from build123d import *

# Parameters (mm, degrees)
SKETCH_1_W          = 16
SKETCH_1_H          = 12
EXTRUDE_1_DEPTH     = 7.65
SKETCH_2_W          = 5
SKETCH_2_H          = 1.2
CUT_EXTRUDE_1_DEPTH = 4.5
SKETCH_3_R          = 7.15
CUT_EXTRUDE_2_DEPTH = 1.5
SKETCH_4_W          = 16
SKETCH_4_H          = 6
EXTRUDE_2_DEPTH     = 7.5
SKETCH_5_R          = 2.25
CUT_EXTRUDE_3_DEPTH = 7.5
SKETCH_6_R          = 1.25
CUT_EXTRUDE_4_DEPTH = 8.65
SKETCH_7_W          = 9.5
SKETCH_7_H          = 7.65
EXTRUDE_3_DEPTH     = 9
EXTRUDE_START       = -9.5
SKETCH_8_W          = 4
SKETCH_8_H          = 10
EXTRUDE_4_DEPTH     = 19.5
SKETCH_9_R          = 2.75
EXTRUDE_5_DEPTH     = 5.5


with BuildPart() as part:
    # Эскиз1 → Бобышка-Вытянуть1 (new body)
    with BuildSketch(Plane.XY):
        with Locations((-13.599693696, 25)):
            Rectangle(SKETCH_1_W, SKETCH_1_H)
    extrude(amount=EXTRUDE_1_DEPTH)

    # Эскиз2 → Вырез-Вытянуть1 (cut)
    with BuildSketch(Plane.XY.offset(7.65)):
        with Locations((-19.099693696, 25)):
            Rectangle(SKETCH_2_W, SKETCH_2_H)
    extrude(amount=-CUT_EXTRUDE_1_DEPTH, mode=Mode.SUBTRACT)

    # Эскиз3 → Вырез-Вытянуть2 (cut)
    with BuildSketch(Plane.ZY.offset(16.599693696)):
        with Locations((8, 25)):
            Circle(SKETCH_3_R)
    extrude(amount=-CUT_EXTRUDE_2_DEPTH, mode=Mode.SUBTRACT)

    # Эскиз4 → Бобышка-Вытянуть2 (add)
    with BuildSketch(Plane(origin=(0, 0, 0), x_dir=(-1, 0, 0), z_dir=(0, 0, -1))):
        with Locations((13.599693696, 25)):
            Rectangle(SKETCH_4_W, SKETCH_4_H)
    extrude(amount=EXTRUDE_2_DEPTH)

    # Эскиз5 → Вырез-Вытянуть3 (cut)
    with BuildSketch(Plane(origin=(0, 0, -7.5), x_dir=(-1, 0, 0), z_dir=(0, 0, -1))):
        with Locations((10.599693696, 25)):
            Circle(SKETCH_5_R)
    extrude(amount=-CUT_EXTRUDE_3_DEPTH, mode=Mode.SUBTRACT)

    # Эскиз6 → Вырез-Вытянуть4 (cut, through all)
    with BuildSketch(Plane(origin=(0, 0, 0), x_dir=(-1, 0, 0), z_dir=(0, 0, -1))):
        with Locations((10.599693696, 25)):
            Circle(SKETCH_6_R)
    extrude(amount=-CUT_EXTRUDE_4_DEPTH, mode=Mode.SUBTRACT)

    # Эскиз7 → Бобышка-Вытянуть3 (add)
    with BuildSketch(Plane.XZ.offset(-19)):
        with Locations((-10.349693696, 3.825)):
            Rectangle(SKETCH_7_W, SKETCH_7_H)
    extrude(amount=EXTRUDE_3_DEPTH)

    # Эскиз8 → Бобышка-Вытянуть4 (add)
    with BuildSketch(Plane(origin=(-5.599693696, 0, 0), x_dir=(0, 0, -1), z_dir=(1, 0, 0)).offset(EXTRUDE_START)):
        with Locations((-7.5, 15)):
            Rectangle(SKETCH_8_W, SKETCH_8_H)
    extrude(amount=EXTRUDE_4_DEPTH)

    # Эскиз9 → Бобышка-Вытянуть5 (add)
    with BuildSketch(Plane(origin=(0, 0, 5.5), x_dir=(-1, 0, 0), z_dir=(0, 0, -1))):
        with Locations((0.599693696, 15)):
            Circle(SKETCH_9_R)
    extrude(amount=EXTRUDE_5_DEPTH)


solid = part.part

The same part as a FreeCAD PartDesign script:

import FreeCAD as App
import Part
import Sketcher
Q = App.Units.Quantity

doc = App.newDocument("Part")
body = doc.addObject("PartDesign::Body", "Body")

sketch1 = body.newObject("Sketcher::SketchObject", "Sketch")
sketch1.AttachmentSupport = (doc.getObject("XY_Plane"), [""])
sketch1.MapMode = "FlatFace"
sketch1.addGeometry([
    Part.LineSegment(App.Vector(-22, 31, 0), App.Vector(-22, 19, 0)),
    Part.LineSegment(App.Vector(-22, 19, 0), App.Vector(-6, 19, 0)),
    Part.LineSegment(App.Vector(-6, 19, 0), App.Vector(-6, 31, 0)),
    Part.LineSegment(App.Vector(-6, 31, 0), App.Vector(-22, 31, 0)),
], False)
sketch1.addConstraint([
    Sketcher.Constraint("Coincident", 0, 2, 1, 1),
    Sketcher.Constraint("Coincident", 1, 2, 2, 1),
    Sketcher.Constraint("Coincident", 2, 2, 3, 1),
    Sketcher.Constraint("Coincident", 3, 2, 0, 1),
    Sketcher.Constraint("Vertical", 0),
    Sketcher.Constraint("Horizontal", 1),
    Sketcher.Constraint("Vertical", 2),
    Sketcher.Constraint("Horizontal", 3),
    Sketcher.Constraint("DistanceX", 1, 1, 1, 2, Q("16 mm")),
    Sketcher.Constraint("DistanceY", 0, 2, 0, 1, Q("12 mm")),
    Sketcher.Constraint("DistanceY", -1, 1, 0, 2, Q("19 mm")),
    Sketcher.Constraint("DistanceX", 0, 2, -1, 1, Q("21.599694 mm")),
])
pad1 = body.newObject("PartDesign::Pad", "Pad")
pad1.Profile = sketch1
pad1.Length = 7.65

sketch2 = body.newObject("Sketcher::SketchObject", "Sketch001")
sketch2.AttachmentSupport = (doc.getObject("XY_Plane"), [""])
sketch2.MapMode = "FlatFace"
sketch2.AttachmentOffset = App.Placement(App.Vector(0, 0, 7.65), App.Rotation())
sketch2.addGeometry([
    Part.LineSegment(App.Vector(-21.6, 25.6, 0), App.Vector(-21.6, 24.4, 0)),
    Part.LineSegment(App.Vector(-21.6, 24.4, 0), App.Vector(-16.6, 24.4, 0)),
    Part.LineSegment(App.Vector(-16.6, 24.4, 0), App.Vector(-16.6, 25.6, 0)),
    Part.LineSegment(App.Vector(-16.6, 25.6, 0), App.Vector(-21.6, 25.6, 0)),
], False)
sketch2.addConstraint([
    Sketcher.Constraint("Coincident", 0, 2, 1, 1),
    Sketcher.Constraint("Coincident", 1, 2, 2, 1),
    Sketcher.Constraint("Coincident", 2, 2, 3, 1),
    Sketcher.Constraint("Coincident", 3, 2, 0, 1),
    Sketcher.Constraint("Vertical", 0),
    Sketcher.Constraint("Horizontal", 1),
    Sketcher.Constraint("Vertical", 2),
    Sketcher.Constraint("Horizontal", 3),
    Sketcher.Constraint("DistanceX", 1, 1, 1, 2, Q("5 mm")),
    Sketcher.Constraint("DistanceY", 0, 2, 0, 1, Q("1.2 mm")),
    Sketcher.Constraint("DistanceY", -1, 1, 0, 2, Q("24.4 mm")),
    Sketcher.Constraint("DistanceX", 0, 2, -1, 1, Q("21.599694 mm")),
])
pocket1 = body.newObject("PartDesign::Pocket", "Pocket")
pocket1.Profile = sketch2
pocket1.Length = 4.5

sketch3 = body.newObject("Sketcher::SketchObject", "Sketch002")
sketch3.AttachmentSupport = (doc.getObject("YZ_Plane"), [""])
sketch3.MapMode = "FlatFace"
sketch3.AttachmentOffset = App.Placement(App.Vector(0, 0, -16.599694), App.Rotation())
sketch3.addGeometry(Part.Circle(App.Vector(25, 8, 0), App.Vector(0, 0, 1), 7), False)
sketch3.addConstraint([
    Sketcher.Constraint("Diameter", 0, Q("14.3 mm")),
    Sketcher.Constraint("DistanceX", -1, 1, 0, 3, Q("25 mm")),
    Sketcher.Constraint("DistanceY", -1, 1, 0, 3, Q("8 mm")),
])
pocket2 = body.newObject("PartDesign::Pocket", "Pocket001")
pocket2.Profile = sketch3
pocket2.Length = 1.5
pocket2.Reversed = True

sketch4 = body.newObject("Sketcher::SketchObject", "Sketch003")
sketch4.AttachmentSupport = (doc.getObject("XY_Plane"), [""])
sketch4.MapMode = "FlatFace"
sketch4.addGeometry([
    Part.LineSegment(App.Vector(-6, 28, 0), App.Vector(-6, 22, 0)),
    Part.LineSegment(App.Vector(-6, 22, 0), App.Vector(-22, 22, 0)),
    Part.LineSegment(App.Vector(-22, 22, 0), App.Vector(-22, 28, 0)),
    Part.LineSegment(App.Vector(-22, 28, 0), App.Vector(-6, 28, 0)),
], False)
sketch4.addConstraint([
    Sketcher.Constraint("Coincident", 0, 2, 1, 1),
    Sketcher.Constraint("Coincident", 1, 2, 2, 1),
    Sketcher.Constraint("Coincident", 2, 2, 3, 1),
    Sketcher.Constraint("Coincident", 3, 2, 0, 1),
    Sketcher.Constraint("Vertical", 0),
    Sketcher.Constraint("Horizontal", 1),
    Sketcher.Constraint("Vertical", 2),
    Sketcher.Constraint("Horizontal", 3),
    Sketcher.Constraint("DistanceX", 1, 2, 1, 1, Q("16 mm")),
    Sketcher.Constraint("DistanceY", 0, 2, 0, 1, Q("6 mm")),
    Sketcher.Constraint("DistanceY", -1, 1, 0, 2, Q("22 mm")),
    Sketcher.Constraint("DistanceX", 0, 2, -1, 1, Q("5.599694 mm")),
])
pad2 = body.newObject("PartDesign::Pad", "Pad001")
pad2.Profile = sketch4
pad2.Length = 7.5
pad2.Reversed = True

sketch5 = body.newObject("Sketcher::SketchObject", "Sketch004")
sketch5.AttachmentSupport = (doc.getObject("XY_Plane"), [""])
sketch5.MapMode = "FlatFace"
sketch5.AttachmentOffset = App.Placement(App.Vector(0, 0, -7.5), App.Rotation())
sketch5.addGeometry(Part.Circle(App.Vector(-10.6, 25, 0), App.Vector(0, 0, 1), 2.2), False)
sketch5.addConstraint([
    Sketcher.Constraint("Diameter", 0, Q("4.5 mm")),
    Sketcher.Constraint("DistanceY", -1, 1, 0, 3, Q("25 mm")),
    Sketcher.Constraint("DistanceX", 0, 3, -1, 1, Q("10.599694 mm")),
])
pocket3 = body.newObject("PartDesign::Pocket", "Pocket002")
pocket3.Profile = sketch5
pocket3.Length = 7.5
pocket3.Reversed = True

sketch6 = body.newObject("Sketcher::SketchObject", "Sketch005")
sketch6.AttachmentSupport = (doc.getObject("XY_Plane"), [""])
sketch6.MapMode = "FlatFace"
sketch6.addGeometry(Part.Circle(App.Vector(-10.6, 25, 0), App.Vector(0, 0, 1), 1.2), False)
sketch6.addConstraint([
    Sketcher.Constraint("Diameter", 0, Q("2.5 mm")),
    Sketcher.Constraint("DistanceY", -1, 1, 0, 3, Q("25 mm")),
    Sketcher.Constraint("DistanceX", 0, 3, -1, 1, Q("10.599694 mm")),
])
pocket4 = body.newObject("PartDesign::Pocket", "Pocket003")
pocket4.Profile = sketch6
pocket4.Type = "ThroughAll"
pocket4.Reversed = True

sketch7 = body.newObject("Sketcher::SketchObject", "Sketch006")
sketch7.AttachmentSupport = (doc.getObject("XZ_Plane"), [""])
sketch7.MapMode = "FlatFace"
sketch7.AttachmentOffset = App.Placement(App.Vector(0, 0, -19), App.Rotation())
sketch7.addGeometry([
    Part.LineSegment(App.Vector(-15, 8, 0), App.Vector(-15, 0, 0)),
    Part.LineSegment(App.Vector(-15, 0, 0), App.Vector(-6, 0, 0)),
    Part.LineSegment(App.Vector(-6, 0, 0), App.Vector(-6, 8, 0)),
    Part.LineSegment(App.Vector(-6, 8, 0), App.Vector(-15, 8, 0)),
], False)
sketch7.addConstraint([
    Sketcher.Constraint("Coincident", 0, 2, 1, 1),
    Sketcher.Constraint("Coincident", 1, 2, 2, 1),
    Sketcher.Constraint("Coincident", 2, 2, 3, 1),
    Sketcher.Constraint("Coincident", 3, 2, 0, 1),
    Sketcher.Constraint("Vertical", 0),
    Sketcher.Constraint("Horizontal", 1),
    Sketcher.Constraint("Vertical", 2),
    Sketcher.Constraint("Horizontal", 3),
    Sketcher.Constraint("PointOnObject", 0, 2, -1),
    Sketcher.Constraint("DistanceX", 1, 1, 1, 2, Q("9.5 mm")),
    Sketcher.Constraint("DistanceY", 0, 2, 0, 1, Q("7.65 mm")),
    Sketcher.Constraint("DistanceX", 0, 2, -1, 1, Q("15.099694 mm")),
])
pad3 = body.newObject("PartDesign::Pad", "Pad002")
pad3.Profile = sketch7
pad3.Length = 9

sketch8 = body.newObject("Sketcher::SketchObject", "Sketch007")
sketch8.AttachmentSupport = (doc.getObject("YZ_Plane"), [""])
sketch8.MapMode = "FlatFace"
sketch8.AttachmentOffset = App.Placement(App.Vector(0, 0, -15.099694), App.Rotation())
sketch8.addGeometry([
    Part.LineSegment(App.Vector(20, 9.5, 0), App.Vector(10, 9.5, 0)),
    Part.LineSegment(App.Vector(10, 9.5, 0), App.Vector(10, 5.5, 0)),
    Part.LineSegment(App.Vector(10, 5.5, 0), App.Vector(20, 5.5, 0)),
    Part.LineSegment(App.Vector(20, 5.5, 0), App.Vector(20, 9.5, 0)),
], False)
sketch8.addConstraint([
    Sketcher.Constraint("Coincident", 0, 2, 1, 1),
    Sketcher.Constraint("Coincident", 1, 2, 2, 1),
    Sketcher.Constraint("Coincident", 2, 2, 3, 1),
    Sketcher.Constraint("Coincident", 3, 2, 0, 1),
    Sketcher.Constraint("Horizontal", 0),
    Sketcher.Constraint("Vertical", 1),
    Sketcher.Constraint("Horizontal", 2),
    Sketcher.Constraint("Vertical", 3),
    Sketcher.Constraint("DistanceX", 0, 2, 0, 1, Q("10 mm")),
    Sketcher.Constraint("DistanceY", 1, 2, 1, 1, Q("4 mm")),
    Sketcher.Constraint("DistanceX", -1, 1, 0, 2, Q("10 mm")),
    Sketcher.Constraint("DistanceY", -1, 1, 0, 2, Q("9.5 mm")),
])
pad4 = body.newObject("PartDesign::Pad", "Pad003")
pad4.Profile = sketch8
pad4.Length = 19.5

sketch9 = body.newObject("Sketcher::SketchObject", "Sketch008")
sketch9.AttachmentSupport = (doc.getObject("XY_Plane"), [""])
sketch9.MapMode = "FlatFace"
sketch9.AttachmentOffset = App.Placement(App.Vector(0, 0, 5.5), App.Rotation())
sketch9.addGeometry(Part.Circle(App.Vector(-0.6, 15, 0), App.Vector(0, 0, 1), 2.8), False)
sketch9.addConstraint([
    Sketcher.Constraint("Diameter", 0, Q("5.5 mm")),
    Sketcher.Constraint("DistanceY", -1, 1, 0, 3, Q("15 mm")),
    Sketcher.Constraint("DistanceX", 0, 3, -1, 1, Q("0.599694 mm")),
])
pad5 = body.newObject("PartDesign::Pad", "Pad004")
pad5.Profile = sketch9
pad5.Length = 5.5
pad5.Reversed = True

doc.recompute()
